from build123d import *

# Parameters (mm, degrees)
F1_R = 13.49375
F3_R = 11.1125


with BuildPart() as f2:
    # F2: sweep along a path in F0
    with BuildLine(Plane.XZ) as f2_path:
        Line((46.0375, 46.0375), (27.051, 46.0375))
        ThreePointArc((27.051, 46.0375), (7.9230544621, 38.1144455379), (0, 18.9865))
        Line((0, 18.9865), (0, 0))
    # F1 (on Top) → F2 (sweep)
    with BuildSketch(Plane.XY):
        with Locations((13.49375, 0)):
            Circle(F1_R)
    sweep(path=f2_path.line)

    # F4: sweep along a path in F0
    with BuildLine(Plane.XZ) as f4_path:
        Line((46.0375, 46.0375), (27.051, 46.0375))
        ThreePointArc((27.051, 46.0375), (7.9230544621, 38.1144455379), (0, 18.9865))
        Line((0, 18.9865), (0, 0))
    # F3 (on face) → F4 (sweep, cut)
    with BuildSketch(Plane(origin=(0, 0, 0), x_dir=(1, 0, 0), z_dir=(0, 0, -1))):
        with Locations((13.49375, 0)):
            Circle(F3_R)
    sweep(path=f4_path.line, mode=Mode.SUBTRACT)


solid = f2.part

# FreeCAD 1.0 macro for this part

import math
import FreeCAD as App
import Part
import Sketcher
Q = App.Units.Quantity

doc = App.newDocument("Part")
body = doc.addObject("PartDesign::Body", "Body")

sketch1 = body.newObject("Sketcher::SketchObject", "Sketch")
sketch1.AttachmentSupport = (doc.getObject("XY_Plane"), [""])
sketch1.MapMode = "FlatFace"
sketch1.addGeometry(Part.Circle(App.Vector(13.49375, 0, 0), App.Vector(0, 0, 1), 13.49375), False)
sketch1.addConstraint([
    Sketcher.Constraint("PointOnObject", 0, 3, -1),
    Sketcher.Constraint("Diameter", 0, Q("1.0625 in")),
    Sketcher.Constraint("DistanceX", -1, 1, 0, 3, Q("0.53125 in")),
])

sketch2 = body.newObject("Sketcher::SketchObject", "Sketch001")
sketch2.AttachmentSupport = (doc.getObject("XZ_Plane"), [""])
sketch2.MapMode = "FlatFace"
sketch2.addGeometry([
    Part.LineSegment(App.Vector(46.0375, 46.0375, 0), App.Vector(27.051, 46.0375, 0)),
    Part.ArcOfCircle(Part.Circle(App.Vector(27.051, 18.9865, 0), App.Vector(0, 0, 1), 27.051), math.radians(90), math.radians(180)),
    Part.LineSegment(App.Vector(0, 18.9865, 0), App.Vector(0, 0, 0)),
], False)
sketch2.addConstraint([
    Sketcher.Constraint("Tangent", 0, 2, 1, 1),
    Sketcher.Constraint("Tangent", 1, 2, 2, 1),
    Sketcher.Constraint("Horizontal", 0),
    Sketcher.Constraint("Vertical", 2),
    Sketcher.Constraint("Coincident", 2, 2, -1, 1),
    Sketcher.Constraint("Equal", 0, 2),
    Sketcher.Constraint("Radius", 1, Q("1.065 in")),
    Sketcher.Constraint("DistanceX", 0, 2, 0, 1, Q("0.7475 in")),
])
doc.recompute()

additivepipe = body.newObject("PartDesign::AdditivePipe", "AdditivePipe")
additivepipe.Profile = sketch1
additivepipe.Spine = (sketch2, ["Edge1", "Edge2", "Edge3"])

sketch3 = body.newObject("Sketcher::SketchObject", "Sketch002")
sketch3.AttachmentSupport = (doc.getObject("XY_Plane"), [""])
sketch3.MapMode = "FlatFace"
sketch3.addGeometry(Part.Circle(App.Vector(13.49375, 0, 0), App.Vector(0, 0, 1), 11.1125), False)
sketch3.addConstraint([
    Sketcher.Constraint("PointOnObject", 0, 3, -1),
    Sketcher.Constraint("Diameter", 0, Q("0.875 in")),
    Sketcher.Constraint("DistanceX", -1, 1, 0, 3, Q("0.53125 in")),
])

sketch4 = body.newObject("Sketcher::SketchObject", "Sketch003")
sketch4.AttachmentSupport = (doc.getObject("XZ_Plane"), [""])
sketch4.MapMode = "FlatFace"
sketch4.addGeometry([
    Part.LineSegment(App.Vector(46.0375, 46.0375, 0), App.Vector(27.051, 46.0375, 0)),
    Part.ArcOfCircle(Part.Circle(App.Vector(27.051, 18.9865, 0), App.Vector(0, 0, 1), 27.051), math.radians(90), math.radians(180)),
    Part.LineSegment(App.Vector(0, 18.9865, 0), App.Vector(0, 0, 0)),
], False)
sketch4.addConstraint([
    Sketcher.Constraint("Tangent", 0, 2, 1, 1),
    Sketcher.Constraint("Tangent", 1, 2, 2, 1),
    Sketcher.Constraint("Horizontal", 0),
    Sketcher.Constraint("Vertical", 2),
    Sketcher.Constraint("Coincident", 2, 2, -1, 1),
    Sketcher.Constraint("Equal", 0, 2),
    Sketcher.Constraint("Radius", 1, Q("1.065 in")),
    Sketcher.Constraint("DistanceX", 0, 2, 0, 1, Q("0.7475 in")),
])
doc.recompute()

subtractivepipe = body.newObject("PartDesign::SubtractivePipe", "SubtractivePipe")
subtractivepipe.Profile = sketch3
subtractivepipe.Spine = (sketch4, ["Edge1", "Edge2", "Edge3"])

doc.recompute()
